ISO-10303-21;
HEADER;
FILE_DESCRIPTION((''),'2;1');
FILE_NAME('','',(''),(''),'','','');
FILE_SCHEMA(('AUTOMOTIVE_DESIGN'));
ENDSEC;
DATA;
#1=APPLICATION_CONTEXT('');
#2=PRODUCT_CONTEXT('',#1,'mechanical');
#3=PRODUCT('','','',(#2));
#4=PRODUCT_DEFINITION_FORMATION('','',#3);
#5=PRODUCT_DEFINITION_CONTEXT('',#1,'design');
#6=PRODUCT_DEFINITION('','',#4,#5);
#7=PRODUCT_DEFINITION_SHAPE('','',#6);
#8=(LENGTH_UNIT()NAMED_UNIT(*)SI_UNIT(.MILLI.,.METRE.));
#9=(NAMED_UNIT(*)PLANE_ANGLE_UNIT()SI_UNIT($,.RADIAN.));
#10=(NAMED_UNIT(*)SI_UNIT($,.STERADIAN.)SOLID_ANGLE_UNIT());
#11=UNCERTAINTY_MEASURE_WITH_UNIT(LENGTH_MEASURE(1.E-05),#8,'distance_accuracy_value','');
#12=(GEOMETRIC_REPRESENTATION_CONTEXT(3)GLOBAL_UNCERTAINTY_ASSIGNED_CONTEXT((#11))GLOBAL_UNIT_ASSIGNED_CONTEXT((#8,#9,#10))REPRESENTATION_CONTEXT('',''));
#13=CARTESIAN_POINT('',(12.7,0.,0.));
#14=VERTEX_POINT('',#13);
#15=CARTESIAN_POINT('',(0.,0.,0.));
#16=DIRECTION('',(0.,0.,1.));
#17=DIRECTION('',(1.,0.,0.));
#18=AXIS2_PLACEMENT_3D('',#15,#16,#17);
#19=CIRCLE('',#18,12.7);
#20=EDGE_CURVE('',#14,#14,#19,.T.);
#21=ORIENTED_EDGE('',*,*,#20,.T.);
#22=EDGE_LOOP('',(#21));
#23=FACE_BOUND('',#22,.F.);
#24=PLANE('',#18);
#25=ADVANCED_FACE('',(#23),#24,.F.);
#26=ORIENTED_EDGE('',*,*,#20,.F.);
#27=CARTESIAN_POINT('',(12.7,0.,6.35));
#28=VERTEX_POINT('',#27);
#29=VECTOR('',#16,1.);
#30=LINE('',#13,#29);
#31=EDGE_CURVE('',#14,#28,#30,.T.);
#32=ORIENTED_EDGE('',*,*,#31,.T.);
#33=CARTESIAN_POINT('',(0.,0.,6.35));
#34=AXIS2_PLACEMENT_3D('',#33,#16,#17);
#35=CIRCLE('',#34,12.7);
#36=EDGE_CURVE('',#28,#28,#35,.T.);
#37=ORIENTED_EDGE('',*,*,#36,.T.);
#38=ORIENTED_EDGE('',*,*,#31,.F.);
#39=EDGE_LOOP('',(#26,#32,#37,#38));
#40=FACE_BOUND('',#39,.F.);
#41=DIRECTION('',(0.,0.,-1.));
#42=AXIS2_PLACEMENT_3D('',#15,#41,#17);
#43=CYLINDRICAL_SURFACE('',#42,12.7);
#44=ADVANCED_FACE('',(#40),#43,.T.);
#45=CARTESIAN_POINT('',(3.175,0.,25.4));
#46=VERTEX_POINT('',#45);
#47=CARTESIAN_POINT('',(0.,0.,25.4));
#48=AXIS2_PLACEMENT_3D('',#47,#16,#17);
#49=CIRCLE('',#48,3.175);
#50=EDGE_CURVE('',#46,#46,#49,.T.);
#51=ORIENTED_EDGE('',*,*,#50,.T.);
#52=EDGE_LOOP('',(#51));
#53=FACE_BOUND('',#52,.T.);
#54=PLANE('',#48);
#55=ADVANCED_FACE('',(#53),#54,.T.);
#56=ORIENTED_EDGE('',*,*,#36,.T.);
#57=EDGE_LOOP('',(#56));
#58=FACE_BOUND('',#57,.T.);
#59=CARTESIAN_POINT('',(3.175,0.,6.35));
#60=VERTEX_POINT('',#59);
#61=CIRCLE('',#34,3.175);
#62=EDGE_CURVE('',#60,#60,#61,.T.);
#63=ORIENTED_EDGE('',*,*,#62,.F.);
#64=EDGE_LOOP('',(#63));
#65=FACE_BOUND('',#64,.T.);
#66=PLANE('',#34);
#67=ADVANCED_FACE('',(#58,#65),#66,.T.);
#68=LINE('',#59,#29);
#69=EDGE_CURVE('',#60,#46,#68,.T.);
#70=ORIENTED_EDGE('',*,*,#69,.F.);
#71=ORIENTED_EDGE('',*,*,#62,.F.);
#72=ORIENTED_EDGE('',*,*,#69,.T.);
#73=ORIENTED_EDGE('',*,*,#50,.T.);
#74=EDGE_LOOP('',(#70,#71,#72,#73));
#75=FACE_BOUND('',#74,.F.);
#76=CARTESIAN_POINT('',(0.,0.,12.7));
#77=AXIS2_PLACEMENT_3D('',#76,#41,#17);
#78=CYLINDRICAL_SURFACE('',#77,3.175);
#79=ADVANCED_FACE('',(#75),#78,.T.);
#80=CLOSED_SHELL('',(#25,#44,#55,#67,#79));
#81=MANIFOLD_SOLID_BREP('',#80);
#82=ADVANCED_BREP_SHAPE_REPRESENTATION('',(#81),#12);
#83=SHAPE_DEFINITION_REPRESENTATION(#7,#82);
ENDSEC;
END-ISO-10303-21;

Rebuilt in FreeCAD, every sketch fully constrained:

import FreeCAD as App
import Part
import Sketcher
from FreeCAD import Vector
Q = App.Units.Quantity

doc = App.newDocument("Part")
params = doc.addObject("Spreadsheet::Sheet", "Params")
for row, (alias, value) in enumerate([
    ("sketch1_diameter", "1 in"),
    ("pad1_length", "0.25 in"),
    ("sketch2_diameter", "0.25 in"),
    ("pad2_length", "0.25 in"),
    ("sketch3_diameter", "0.25 in"),
    ("pad3_length", "0.5 in"),
], start=1):
    params.set(f"A{row}", alias)
    params.set(f"B{row}", "=" + value)
    params.setAlias(f"B{row}", alias)

body = doc.addObject("PartDesign::Body", "Body")

# Sketch on XY plane
sketch1 = body.newObject("Sketcher::SketchObject", "Sketch")
sketch1.AttachmentSupport = (doc.getObject("XY_Plane"), [""])
sketch1.MapMode = "FlatFace"
sketch1.addGeometry(Part.Circle(Vector(0, 0, 0), Vector(0, 0, 1), 13), False)
sketch1.addConstraint([
    Sketcher.Constraint("Coincident", 0, 3, -1, 1),
    Sketcher.Constraint("Diameter", 0, Q("1 in")),
])
sketch1.setExpression("Constraints[1]", "Params.sketch1_diameter")
pad1 = body.newObject("PartDesign::Pad", "Pad")
pad1.Profile = sketch1
pad1.setExpression("Length", "Params.pad1_length")

# Sketch on XY plane
sketch2 = body.newObject("Sketcher::SketchObject", "Sketch001")
sketch2.AttachmentSupport = (doc.getObject("XY_Plane"), [""])
sketch2.MapMode = "FlatFace"
sketch2.AttachmentOffset = App.Placement(Vector(0, 0, 0.25 * 25.4), App.Rotation())
sketch2.addGeometry(Part.Circle(Vector(0, 0, 0), Vector(0, 0, 1), 3.2), False)
sketch2.addConstraint([
    Sketcher.Constraint("Coincident", 0, 3, -1, 1),
    Sketcher.Constraint("Diameter", 0, Q("0.25 in")),
])
sketch2.setExpression("Constraints[1]", "Params.sketch2_diameter")
pad2 = body.newObject("PartDesign::Pad", "Pad001")
pad2.Profile = sketch2
pad2.setExpression("Length", "Params.pad2_length")

# Sketch on XY plane
sketch3 = body.newObject("Sketcher::SketchObject", "Sketch002")
sketch3.AttachmentSupport = (doc.getObject("XY_Plane"), [""])
sketch3.MapMode = "FlatFace"
sketch3.AttachmentOffset = App.Placement(Vector(0, 0, 0.5 * 25.4), App.Rotation())
sketch3.addGeometry(Part.Circle(Vector(0, 0, 0), Vector(0, 0, 1), 3.2), False)
sketch3.addConstraint([
    Sketcher.Constraint("Coincident", 0, 3, -1, 1),
    Sketcher.Constraint("Diameter", 0, Q("0.25 in")),
])
sketch3.setExpression("Constraints[1]", "Params.sketch3_diameter")
pad3 = body.newObject("PartDesign::Pad", "Pad002")
pad3.Profile = sketch3
pad3.setExpression("Length", "Params.pad3_length")

doc.recompute()
